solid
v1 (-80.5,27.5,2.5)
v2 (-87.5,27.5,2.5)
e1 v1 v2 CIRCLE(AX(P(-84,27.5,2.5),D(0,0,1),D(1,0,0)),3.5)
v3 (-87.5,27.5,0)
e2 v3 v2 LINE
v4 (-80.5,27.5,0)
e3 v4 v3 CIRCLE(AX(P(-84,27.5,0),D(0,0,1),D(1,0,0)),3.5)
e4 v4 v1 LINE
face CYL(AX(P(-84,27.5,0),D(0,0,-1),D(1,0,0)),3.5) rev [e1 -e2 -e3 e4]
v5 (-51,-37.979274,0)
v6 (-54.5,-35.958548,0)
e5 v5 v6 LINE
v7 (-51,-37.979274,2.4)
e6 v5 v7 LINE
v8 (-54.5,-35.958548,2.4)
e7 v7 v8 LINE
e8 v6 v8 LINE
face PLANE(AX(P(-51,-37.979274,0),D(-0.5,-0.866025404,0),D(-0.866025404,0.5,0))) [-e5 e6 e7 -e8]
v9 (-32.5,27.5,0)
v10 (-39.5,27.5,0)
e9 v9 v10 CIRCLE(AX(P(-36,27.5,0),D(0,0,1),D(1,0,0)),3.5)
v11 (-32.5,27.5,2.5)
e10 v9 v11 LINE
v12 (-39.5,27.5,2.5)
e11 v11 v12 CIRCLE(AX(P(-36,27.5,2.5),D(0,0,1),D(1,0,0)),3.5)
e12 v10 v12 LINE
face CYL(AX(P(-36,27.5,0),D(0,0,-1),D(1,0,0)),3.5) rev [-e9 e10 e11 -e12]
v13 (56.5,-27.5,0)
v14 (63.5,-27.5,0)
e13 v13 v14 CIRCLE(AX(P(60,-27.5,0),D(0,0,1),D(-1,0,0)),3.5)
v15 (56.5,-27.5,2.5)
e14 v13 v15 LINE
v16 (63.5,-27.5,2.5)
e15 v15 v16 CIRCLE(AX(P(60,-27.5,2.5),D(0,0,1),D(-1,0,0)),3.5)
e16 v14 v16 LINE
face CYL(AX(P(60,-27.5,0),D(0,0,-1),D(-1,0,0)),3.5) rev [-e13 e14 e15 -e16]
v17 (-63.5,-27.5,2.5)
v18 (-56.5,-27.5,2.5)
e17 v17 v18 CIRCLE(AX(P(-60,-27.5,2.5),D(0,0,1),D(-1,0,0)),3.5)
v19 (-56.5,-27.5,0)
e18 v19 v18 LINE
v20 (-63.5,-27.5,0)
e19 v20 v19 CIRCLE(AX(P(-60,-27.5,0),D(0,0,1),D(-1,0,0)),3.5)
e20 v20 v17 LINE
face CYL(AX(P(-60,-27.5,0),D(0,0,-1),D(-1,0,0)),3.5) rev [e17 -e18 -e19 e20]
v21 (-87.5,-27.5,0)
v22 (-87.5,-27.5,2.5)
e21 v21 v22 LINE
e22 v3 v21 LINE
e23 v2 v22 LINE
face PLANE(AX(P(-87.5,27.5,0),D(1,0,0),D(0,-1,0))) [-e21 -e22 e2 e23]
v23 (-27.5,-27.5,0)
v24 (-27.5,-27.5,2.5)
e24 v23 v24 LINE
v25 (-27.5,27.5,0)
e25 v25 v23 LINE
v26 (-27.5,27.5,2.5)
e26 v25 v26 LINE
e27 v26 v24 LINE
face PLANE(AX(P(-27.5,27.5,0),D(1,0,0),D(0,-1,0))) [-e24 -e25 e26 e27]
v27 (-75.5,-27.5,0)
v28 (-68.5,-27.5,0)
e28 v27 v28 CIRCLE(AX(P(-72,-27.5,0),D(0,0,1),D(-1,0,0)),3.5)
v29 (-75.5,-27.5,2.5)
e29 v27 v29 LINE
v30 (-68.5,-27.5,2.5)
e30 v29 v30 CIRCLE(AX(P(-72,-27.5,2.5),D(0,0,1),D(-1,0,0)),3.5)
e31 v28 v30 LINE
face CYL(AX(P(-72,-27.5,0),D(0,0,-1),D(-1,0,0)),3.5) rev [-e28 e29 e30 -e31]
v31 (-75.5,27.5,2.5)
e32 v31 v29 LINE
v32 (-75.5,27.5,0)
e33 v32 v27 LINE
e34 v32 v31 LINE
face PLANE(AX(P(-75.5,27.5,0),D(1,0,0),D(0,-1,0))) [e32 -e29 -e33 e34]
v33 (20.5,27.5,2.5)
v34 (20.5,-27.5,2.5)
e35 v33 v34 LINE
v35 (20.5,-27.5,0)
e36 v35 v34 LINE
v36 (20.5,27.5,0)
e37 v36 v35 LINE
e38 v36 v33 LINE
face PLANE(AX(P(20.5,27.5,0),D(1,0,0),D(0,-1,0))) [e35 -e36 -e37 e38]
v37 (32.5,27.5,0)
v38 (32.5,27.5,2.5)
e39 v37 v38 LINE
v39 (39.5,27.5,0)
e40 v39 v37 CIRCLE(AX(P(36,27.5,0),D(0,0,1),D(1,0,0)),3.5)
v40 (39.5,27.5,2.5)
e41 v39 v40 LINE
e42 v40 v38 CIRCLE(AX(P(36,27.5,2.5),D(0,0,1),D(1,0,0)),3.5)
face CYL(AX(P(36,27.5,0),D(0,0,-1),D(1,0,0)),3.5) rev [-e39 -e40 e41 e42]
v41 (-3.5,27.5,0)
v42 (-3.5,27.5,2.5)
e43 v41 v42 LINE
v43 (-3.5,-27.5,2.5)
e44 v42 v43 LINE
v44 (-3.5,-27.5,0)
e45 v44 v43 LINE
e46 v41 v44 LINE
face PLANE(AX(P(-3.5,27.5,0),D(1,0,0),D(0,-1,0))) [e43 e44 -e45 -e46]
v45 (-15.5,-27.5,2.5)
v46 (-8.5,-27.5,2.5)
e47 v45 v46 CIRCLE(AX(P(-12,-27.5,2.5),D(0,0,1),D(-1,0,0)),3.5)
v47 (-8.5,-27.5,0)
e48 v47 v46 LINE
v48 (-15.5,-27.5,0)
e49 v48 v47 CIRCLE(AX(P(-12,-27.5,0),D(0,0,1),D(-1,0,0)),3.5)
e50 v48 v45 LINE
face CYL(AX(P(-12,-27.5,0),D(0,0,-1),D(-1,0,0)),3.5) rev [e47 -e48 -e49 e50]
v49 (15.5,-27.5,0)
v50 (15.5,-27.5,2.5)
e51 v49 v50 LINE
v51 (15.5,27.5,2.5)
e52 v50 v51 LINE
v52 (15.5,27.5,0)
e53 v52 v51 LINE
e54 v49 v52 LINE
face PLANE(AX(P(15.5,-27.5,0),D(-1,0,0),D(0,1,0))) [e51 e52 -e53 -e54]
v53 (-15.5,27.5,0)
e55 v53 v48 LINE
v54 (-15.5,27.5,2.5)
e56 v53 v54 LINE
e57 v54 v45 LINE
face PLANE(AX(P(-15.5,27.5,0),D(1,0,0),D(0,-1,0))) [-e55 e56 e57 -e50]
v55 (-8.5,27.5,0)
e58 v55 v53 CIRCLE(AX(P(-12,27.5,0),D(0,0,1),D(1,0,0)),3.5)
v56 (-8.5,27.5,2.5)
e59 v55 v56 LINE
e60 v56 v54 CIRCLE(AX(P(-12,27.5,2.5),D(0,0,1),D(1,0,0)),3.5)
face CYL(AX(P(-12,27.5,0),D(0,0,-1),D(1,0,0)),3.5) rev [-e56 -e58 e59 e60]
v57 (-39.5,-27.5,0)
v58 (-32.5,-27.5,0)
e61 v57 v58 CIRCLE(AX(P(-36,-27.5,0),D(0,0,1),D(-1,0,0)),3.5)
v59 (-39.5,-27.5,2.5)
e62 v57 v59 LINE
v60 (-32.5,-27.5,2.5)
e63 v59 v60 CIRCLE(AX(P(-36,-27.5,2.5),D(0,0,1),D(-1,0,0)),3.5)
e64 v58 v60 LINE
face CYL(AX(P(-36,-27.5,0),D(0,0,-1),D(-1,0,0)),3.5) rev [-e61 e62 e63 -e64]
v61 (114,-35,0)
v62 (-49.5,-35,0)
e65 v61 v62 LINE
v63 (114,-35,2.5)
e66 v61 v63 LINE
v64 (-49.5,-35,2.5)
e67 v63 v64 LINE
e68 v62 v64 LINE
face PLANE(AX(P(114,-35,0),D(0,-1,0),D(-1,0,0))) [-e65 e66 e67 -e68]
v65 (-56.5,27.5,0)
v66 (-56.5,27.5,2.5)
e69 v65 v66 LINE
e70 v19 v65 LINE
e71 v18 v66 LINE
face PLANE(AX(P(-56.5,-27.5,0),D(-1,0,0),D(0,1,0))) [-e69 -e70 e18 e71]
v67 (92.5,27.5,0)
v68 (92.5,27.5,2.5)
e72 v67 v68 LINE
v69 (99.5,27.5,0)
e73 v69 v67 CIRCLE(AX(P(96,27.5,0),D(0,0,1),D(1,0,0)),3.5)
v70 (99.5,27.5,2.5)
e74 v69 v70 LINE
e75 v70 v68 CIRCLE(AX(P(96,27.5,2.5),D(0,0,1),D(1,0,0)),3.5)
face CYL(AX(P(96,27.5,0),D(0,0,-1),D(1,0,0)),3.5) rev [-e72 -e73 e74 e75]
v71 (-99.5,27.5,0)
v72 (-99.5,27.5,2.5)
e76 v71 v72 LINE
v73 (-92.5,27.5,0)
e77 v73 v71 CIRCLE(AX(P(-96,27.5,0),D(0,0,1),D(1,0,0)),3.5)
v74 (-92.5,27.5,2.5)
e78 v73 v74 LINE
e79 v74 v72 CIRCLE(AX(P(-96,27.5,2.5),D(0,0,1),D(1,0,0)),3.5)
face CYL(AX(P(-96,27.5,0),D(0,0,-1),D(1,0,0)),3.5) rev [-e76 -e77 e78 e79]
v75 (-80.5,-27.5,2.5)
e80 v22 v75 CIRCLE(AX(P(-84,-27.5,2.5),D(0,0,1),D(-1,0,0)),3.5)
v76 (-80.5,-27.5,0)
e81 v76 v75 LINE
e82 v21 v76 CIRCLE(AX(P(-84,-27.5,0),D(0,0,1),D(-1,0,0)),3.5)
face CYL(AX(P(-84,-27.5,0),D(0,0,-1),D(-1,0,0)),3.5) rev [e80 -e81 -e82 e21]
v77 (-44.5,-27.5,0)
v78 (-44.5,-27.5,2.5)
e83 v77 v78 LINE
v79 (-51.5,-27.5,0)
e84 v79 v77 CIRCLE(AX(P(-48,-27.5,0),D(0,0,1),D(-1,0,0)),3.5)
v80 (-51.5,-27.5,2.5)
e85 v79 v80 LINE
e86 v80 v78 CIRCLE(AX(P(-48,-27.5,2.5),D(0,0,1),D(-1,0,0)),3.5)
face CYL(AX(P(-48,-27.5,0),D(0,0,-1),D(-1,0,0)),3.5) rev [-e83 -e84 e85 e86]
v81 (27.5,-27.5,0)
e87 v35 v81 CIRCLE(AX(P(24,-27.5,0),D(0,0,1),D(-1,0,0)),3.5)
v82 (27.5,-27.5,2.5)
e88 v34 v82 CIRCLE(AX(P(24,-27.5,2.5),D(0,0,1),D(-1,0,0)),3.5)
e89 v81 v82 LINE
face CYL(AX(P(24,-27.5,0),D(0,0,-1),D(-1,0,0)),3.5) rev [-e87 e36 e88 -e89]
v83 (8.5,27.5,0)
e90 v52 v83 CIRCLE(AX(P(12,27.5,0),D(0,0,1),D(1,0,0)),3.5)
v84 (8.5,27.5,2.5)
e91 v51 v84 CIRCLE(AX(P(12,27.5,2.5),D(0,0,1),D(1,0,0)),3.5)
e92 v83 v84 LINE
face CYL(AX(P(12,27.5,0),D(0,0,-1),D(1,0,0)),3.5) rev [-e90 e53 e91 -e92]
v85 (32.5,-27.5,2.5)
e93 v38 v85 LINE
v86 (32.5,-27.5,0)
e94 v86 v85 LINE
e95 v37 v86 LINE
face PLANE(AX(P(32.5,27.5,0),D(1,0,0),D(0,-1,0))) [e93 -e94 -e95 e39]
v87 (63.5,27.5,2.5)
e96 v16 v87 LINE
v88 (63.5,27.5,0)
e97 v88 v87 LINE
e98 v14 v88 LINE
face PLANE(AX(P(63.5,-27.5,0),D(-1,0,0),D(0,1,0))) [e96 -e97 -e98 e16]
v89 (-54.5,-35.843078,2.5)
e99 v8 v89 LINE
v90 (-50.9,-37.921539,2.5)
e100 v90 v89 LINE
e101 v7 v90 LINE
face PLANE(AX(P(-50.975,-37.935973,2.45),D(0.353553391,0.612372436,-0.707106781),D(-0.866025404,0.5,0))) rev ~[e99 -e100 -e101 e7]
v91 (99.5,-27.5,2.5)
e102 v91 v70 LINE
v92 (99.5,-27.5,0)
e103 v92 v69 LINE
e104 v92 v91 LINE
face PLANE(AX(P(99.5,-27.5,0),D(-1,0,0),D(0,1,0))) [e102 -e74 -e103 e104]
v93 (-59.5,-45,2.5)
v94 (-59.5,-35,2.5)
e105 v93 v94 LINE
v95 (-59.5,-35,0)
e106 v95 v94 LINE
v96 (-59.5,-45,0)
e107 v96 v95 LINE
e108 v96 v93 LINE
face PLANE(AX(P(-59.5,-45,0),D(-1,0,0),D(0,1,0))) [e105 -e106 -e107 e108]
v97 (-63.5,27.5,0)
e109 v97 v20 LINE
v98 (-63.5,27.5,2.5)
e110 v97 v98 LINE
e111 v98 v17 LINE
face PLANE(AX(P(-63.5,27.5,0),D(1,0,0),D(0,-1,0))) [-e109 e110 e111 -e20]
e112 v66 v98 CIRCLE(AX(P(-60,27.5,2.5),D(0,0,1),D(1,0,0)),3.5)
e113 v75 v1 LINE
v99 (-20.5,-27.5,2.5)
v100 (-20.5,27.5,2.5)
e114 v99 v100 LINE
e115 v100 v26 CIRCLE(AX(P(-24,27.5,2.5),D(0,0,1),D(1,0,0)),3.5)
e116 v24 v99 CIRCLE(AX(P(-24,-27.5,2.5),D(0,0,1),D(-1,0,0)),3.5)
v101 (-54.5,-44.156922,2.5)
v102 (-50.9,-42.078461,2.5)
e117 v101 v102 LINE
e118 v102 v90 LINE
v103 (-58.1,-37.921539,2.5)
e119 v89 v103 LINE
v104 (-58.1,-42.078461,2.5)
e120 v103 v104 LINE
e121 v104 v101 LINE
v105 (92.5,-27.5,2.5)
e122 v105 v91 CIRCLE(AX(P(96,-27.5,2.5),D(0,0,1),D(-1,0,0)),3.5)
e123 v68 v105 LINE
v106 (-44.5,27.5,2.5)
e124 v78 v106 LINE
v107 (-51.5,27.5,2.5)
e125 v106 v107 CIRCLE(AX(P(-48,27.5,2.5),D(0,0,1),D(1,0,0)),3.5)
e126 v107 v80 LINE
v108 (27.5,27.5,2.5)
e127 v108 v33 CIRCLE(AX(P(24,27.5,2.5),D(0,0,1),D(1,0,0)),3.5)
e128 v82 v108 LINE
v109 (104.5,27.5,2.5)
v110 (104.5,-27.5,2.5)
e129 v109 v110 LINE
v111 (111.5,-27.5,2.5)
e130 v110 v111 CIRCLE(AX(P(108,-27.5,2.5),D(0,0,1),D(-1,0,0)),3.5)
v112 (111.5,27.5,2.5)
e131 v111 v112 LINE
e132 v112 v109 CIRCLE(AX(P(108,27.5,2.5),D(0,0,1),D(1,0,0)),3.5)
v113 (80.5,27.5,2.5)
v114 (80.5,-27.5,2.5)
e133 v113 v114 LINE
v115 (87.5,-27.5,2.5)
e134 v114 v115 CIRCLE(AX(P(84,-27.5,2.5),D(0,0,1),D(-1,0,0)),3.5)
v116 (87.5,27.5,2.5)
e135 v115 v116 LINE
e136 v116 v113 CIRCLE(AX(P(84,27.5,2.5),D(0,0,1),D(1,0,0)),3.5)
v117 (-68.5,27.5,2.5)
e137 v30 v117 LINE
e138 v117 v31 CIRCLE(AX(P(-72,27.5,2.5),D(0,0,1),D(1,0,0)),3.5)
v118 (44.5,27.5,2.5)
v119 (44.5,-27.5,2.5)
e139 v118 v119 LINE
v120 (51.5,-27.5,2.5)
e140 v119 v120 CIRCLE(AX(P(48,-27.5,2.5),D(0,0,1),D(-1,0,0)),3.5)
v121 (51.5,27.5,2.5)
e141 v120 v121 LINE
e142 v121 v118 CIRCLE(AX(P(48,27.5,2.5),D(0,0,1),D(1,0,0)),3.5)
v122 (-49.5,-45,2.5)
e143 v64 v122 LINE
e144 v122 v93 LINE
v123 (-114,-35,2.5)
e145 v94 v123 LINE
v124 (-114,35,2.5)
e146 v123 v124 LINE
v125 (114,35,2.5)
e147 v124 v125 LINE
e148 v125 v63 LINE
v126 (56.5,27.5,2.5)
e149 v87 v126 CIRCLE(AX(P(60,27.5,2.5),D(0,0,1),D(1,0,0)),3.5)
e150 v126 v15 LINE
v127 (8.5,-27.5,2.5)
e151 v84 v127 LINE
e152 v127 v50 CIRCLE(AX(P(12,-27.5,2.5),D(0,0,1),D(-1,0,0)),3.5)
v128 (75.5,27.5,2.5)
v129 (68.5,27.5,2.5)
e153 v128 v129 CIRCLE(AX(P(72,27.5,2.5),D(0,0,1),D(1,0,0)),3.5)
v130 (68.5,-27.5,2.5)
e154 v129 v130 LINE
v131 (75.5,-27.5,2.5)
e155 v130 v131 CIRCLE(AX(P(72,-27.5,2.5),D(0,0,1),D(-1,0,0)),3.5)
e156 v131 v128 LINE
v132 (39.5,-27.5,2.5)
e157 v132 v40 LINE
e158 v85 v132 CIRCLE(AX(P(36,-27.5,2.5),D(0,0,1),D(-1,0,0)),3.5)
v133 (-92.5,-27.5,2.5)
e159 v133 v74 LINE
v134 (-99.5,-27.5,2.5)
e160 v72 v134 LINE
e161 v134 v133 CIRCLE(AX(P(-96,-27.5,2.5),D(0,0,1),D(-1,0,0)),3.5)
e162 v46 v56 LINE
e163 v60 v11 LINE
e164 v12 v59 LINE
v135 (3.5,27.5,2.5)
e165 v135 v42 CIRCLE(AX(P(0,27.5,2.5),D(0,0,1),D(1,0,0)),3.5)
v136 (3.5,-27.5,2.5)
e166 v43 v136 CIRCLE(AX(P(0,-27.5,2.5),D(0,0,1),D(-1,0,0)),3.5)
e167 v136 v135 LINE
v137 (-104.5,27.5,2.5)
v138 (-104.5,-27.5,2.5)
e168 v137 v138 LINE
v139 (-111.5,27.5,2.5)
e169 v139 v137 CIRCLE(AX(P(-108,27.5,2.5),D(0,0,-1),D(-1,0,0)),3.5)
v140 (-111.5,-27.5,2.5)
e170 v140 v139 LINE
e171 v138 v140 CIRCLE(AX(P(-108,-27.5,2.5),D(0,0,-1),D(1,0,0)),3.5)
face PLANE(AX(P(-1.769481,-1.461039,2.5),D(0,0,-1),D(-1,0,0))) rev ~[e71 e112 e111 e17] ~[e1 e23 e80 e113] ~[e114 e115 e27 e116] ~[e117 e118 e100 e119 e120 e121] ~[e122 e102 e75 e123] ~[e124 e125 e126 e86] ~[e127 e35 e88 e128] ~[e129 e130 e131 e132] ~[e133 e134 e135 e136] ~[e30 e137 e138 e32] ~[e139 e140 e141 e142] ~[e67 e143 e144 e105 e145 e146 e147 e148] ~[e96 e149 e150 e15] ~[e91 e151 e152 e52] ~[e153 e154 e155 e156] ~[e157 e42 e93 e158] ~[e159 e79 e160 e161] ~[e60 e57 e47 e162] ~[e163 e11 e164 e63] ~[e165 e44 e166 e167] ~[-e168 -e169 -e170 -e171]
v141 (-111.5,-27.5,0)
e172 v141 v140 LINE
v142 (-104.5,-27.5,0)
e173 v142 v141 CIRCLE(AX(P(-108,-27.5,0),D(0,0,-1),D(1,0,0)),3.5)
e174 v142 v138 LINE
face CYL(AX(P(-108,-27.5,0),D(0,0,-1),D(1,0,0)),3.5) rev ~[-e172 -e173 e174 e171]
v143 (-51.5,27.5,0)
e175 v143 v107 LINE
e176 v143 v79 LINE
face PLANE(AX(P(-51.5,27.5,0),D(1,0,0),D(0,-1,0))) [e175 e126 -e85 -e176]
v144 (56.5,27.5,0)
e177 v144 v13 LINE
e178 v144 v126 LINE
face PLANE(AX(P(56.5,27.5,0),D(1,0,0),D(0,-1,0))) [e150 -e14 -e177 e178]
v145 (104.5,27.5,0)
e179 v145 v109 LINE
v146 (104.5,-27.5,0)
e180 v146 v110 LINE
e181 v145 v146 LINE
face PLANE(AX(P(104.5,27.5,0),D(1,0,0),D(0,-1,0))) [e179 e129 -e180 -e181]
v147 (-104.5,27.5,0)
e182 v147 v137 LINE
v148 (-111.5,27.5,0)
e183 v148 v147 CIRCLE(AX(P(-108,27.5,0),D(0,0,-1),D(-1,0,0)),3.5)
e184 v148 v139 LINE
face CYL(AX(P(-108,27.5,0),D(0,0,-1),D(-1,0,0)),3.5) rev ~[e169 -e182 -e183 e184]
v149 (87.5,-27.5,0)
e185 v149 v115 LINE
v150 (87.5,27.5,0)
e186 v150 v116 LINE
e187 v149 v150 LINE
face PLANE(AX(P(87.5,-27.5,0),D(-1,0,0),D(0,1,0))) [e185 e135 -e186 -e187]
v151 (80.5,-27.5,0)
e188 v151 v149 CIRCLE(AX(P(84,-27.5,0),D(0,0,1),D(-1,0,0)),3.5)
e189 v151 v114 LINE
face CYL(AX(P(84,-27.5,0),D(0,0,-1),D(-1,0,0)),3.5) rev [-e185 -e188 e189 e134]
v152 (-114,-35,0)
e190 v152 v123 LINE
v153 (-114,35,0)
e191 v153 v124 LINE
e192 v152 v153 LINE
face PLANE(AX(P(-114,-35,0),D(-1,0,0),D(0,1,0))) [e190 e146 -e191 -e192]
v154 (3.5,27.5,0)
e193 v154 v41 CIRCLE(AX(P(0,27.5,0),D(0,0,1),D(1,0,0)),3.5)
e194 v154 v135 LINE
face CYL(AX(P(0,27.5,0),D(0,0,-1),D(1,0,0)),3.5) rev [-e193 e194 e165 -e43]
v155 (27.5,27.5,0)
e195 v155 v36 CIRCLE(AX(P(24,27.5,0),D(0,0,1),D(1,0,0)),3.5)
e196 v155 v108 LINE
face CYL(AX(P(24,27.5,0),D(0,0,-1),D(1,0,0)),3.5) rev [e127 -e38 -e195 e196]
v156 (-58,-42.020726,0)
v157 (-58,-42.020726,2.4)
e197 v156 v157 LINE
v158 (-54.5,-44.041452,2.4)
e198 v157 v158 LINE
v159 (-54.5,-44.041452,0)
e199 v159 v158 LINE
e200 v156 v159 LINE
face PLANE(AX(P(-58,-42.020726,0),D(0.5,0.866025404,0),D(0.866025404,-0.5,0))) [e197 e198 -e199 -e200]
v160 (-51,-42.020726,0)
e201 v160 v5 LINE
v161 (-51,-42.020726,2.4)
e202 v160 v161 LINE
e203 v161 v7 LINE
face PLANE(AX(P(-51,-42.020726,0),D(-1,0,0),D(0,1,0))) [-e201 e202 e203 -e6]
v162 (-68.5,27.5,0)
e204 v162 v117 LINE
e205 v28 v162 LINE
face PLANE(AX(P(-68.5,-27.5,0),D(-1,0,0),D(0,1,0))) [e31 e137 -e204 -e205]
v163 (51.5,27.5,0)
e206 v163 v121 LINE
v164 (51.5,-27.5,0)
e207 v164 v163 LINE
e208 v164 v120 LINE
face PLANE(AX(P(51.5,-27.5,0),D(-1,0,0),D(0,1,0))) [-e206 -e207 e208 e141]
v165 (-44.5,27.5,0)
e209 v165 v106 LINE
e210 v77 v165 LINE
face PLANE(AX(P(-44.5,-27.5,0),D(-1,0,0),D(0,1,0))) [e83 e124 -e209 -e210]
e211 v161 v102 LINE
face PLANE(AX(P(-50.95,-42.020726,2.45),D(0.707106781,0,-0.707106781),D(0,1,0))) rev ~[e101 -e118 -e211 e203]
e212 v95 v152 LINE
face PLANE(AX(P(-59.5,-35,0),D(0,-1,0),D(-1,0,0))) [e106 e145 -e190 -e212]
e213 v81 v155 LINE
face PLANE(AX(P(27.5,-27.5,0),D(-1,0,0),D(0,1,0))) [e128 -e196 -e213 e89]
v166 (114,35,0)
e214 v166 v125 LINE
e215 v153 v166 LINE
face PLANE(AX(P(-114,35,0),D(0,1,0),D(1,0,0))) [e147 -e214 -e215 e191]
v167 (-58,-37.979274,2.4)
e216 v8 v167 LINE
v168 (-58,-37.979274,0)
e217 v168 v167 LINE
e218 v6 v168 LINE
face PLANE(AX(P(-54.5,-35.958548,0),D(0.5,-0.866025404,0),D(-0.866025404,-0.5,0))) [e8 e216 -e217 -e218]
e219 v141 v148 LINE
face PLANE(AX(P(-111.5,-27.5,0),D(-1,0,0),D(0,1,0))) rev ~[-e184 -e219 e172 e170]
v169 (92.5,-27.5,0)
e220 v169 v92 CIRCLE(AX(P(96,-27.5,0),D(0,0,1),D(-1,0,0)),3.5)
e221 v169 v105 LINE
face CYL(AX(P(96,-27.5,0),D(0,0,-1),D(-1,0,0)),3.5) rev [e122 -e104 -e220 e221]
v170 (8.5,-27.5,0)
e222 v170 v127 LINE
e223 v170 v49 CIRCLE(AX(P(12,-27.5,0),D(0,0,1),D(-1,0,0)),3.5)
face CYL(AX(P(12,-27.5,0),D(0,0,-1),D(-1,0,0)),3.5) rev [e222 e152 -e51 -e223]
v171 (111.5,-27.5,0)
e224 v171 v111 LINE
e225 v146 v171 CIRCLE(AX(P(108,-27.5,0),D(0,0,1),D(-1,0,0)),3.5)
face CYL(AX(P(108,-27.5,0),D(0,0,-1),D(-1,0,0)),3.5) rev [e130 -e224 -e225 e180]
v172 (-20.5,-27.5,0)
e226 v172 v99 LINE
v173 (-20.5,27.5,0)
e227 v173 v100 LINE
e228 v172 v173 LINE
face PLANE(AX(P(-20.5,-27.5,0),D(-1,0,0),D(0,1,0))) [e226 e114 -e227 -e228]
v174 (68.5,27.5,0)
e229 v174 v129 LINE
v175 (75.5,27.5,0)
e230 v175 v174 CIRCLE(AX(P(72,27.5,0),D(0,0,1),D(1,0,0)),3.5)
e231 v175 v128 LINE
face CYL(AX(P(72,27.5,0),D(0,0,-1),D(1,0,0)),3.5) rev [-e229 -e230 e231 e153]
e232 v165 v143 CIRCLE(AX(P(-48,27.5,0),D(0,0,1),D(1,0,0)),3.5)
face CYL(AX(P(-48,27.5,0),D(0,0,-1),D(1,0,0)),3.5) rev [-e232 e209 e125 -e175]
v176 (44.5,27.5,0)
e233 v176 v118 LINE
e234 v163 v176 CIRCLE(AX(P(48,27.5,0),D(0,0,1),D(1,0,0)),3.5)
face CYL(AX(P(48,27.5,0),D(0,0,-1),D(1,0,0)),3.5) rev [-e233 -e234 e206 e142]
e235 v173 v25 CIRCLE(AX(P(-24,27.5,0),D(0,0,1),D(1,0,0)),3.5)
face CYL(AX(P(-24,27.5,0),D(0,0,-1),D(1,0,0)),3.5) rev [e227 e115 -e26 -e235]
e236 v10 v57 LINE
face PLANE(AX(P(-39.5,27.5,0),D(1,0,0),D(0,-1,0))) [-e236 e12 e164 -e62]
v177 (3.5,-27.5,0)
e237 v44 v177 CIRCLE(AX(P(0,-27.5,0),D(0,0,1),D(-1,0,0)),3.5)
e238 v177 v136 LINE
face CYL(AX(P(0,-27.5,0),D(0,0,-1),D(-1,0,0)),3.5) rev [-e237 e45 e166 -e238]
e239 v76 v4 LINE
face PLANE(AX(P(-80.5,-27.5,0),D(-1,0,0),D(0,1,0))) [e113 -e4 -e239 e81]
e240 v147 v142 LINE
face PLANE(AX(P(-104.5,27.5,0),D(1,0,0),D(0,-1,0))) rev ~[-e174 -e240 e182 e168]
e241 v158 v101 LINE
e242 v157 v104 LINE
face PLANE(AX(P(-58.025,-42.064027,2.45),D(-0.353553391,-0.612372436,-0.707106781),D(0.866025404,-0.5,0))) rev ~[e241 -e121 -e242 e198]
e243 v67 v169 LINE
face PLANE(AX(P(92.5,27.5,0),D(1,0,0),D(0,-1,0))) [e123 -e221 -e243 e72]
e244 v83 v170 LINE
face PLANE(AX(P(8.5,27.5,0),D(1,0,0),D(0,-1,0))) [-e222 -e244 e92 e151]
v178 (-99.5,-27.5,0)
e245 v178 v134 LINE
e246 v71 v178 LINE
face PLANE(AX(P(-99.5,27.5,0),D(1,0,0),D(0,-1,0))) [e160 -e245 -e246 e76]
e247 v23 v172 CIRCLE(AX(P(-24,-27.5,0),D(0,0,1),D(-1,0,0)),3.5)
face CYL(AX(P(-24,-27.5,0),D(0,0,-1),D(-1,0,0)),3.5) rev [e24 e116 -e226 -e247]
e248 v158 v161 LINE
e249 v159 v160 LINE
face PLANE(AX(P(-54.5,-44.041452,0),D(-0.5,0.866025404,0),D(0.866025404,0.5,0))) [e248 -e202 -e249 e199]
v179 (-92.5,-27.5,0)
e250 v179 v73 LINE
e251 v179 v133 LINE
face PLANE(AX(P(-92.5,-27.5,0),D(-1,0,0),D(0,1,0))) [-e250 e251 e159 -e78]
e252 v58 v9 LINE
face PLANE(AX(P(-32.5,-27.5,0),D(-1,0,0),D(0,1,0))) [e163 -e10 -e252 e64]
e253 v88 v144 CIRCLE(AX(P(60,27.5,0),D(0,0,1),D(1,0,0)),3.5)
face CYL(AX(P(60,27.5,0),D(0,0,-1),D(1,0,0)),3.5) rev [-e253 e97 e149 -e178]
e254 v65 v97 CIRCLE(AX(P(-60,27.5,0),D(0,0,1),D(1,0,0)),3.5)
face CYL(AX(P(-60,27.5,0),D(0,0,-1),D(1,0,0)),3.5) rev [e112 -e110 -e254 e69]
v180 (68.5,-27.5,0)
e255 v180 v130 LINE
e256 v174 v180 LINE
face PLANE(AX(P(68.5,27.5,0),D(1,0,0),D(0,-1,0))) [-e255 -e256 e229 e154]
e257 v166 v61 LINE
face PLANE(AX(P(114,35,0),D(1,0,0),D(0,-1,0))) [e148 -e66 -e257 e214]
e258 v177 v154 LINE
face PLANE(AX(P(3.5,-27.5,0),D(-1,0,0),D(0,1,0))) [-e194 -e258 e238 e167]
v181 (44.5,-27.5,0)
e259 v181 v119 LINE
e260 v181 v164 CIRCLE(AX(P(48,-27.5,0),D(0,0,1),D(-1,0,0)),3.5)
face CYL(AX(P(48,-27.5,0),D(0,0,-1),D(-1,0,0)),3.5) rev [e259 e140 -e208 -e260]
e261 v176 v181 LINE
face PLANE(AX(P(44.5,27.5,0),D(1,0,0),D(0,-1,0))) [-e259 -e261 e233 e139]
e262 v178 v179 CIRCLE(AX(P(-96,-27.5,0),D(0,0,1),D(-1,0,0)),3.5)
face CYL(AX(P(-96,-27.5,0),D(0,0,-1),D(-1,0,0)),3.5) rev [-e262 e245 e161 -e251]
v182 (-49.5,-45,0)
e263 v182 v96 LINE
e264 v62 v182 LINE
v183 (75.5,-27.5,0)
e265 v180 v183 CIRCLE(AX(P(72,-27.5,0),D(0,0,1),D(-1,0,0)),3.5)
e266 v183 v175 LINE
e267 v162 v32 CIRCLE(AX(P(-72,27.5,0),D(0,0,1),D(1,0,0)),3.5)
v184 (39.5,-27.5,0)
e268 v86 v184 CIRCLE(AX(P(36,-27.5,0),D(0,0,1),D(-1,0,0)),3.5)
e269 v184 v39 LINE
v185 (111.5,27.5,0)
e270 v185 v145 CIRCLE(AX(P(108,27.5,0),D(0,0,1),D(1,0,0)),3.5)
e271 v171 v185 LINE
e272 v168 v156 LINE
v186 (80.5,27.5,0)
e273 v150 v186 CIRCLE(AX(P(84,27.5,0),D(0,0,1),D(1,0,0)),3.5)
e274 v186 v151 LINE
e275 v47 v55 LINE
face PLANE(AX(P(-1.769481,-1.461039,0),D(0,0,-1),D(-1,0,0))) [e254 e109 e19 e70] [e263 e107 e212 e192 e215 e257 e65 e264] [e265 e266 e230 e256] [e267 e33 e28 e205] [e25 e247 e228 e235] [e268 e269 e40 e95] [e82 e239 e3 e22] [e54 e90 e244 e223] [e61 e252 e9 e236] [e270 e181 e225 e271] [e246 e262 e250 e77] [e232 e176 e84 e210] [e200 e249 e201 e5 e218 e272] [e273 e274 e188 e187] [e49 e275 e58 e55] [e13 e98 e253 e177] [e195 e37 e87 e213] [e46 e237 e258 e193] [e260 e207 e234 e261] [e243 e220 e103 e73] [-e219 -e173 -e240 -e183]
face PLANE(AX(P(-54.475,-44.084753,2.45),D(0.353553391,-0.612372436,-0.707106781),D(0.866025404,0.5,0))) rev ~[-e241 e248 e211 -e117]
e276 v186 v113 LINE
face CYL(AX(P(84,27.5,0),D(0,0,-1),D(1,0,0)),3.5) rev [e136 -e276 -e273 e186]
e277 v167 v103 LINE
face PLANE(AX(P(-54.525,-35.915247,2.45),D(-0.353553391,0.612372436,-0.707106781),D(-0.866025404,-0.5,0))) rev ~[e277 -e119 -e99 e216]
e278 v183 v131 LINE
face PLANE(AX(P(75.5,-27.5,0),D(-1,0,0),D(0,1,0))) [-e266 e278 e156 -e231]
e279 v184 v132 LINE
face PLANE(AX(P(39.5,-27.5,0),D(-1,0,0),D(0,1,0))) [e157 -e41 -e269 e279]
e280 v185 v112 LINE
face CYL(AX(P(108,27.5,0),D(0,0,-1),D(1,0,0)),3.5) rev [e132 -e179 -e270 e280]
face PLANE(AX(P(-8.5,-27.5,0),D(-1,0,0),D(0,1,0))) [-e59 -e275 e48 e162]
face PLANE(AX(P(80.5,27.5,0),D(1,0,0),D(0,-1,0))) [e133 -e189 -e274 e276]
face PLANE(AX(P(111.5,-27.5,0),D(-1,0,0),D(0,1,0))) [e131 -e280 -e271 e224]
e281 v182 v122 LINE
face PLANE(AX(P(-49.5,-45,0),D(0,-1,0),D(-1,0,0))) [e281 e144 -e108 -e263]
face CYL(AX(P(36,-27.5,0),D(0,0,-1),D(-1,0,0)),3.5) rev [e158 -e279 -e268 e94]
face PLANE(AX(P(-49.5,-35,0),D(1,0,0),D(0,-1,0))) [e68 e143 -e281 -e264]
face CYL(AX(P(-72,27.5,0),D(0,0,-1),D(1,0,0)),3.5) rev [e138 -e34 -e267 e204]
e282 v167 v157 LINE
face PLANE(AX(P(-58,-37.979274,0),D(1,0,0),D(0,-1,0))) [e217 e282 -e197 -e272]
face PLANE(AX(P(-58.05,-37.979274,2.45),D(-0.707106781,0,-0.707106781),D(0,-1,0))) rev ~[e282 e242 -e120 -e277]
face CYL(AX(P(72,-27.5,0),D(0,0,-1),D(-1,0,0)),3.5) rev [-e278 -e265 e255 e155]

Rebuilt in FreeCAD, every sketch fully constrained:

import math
import FreeCAD as App
import Part
import Sketcher
Q = App.Units.Quantity


def edges_at(feature, points):
    """Names of the edges that pass closest to the given points."""
    edges = feature.Shape.Edges
    near = lambda p: min(range(len(edges)), key=lambda i: edges[i].distToShape(Part.Vertex(*p))[0])
    return sorted({f"Edge{near(p) + 1}" for p in points})

doc = App.newDocument("Part")
body = doc.addObject("PartDesign::Body", "Body")

sketch1 = body.newObject("Sketcher::SketchObject", "Sketch")
sketch1.AttachmentSupport = (doc.getObject("XY_Plane"), [""])
sketch1.MapMode = "FlatFace"
sketch1.addGeometry(Part.LineSegment(App.Vector(114, 35, 0), App.Vector(-114, 35, 0)), False)
sketch1.addGeometry(Part.LineSegment(App.Vector(-114, 35, 0), App.Vector(-114, -35, 0)), False)
sketch1.addGeometry(Part.LineSegment(App.Vector(-114, -35, 0), App.Vector(-59.5, -35, 0)), False)
sketch1.addGeometry(Part.LineSegment(App.Vector(-59.5, -35, 0), App.Vector(-59.5, -45, 0)), False)
sketch1.addGeometry(Part.LineSegment(App.Vector(-59.5, -45, 0), App.Vector(-49.5, -45, 0)), False)
sketch1.addGeometry(Part.LineSegment(App.Vector(-49.5, -45, 0), App.Vector(-49.5, -35, 0)), False)
sketch1.addGeometry(Part.LineSegment(App.Vector(-49.5, -35, 0), App.Vector(114, -35, 0)), False)
sketch1.addGeometry(Part.LineSegment(App.Vector(114, -35, 0), App.Vector(114, 35, 0)), False)
sketch1.addGeometry(Part.LineSegment(App.Vector(-51, -42, 0), App.Vector(-54.5, -44, 0)), False)
sketch1.addGeometry(Part.LineSegment(App.Vector(-54.5, -44, 0), App.Vector(-58, -42, 0)), False)
sketch1.addGeometry(Part.LineSegment(App.Vector(-58, -42, 0), App.Vector(-58, -38, 0)), False)
sketch1.addGeometry(Part.LineSegment(App.Vector(-58, -38, 0), App.Vector(-54.5, -36, 0)), False)
sketch1.addGeometry(Part.LineSegment(App.Vector(-54.5, -36, 0), App.Vector(-51, -38, 0)), False)
sketch1.addGeometry(Part.LineSegment(App.Vector(-51, -38, 0), App.Vector(-51, -42, 0)), False)
sketch1.addGeometry(Part.ArcOfCircle(Part.Circle(App.Vector(108, -27.5, 0), App.Vector(0, 0, 1), 3.5), math.radians(180), math.radians(360)), False)
sketch1.addGeometry(Part.LineSegment(App.Vector(104.5, -27.5, 0), App.Vector(104.5, 27.5, 0)), False)
sketch1.addGeometry(Part.ArcOfCircle(Part.Circle(App.Vector(108, 27.5, 0), App.Vector(0, 0, 1), 3.5), math.radians(0), math.radians(180)), False)
sketch1.addGeometry(Part.LineSegment(App.Vector(111.5, 27.5, 0), App.Vector(111.5, -27.5, 0)), False)
sketch1.addGeometry(Part.ArcOfCircle(Part.Circle(App.Vector(96, -27.5, 0), App.Vector(0, 0, 1), 3.5), math.radians(180), math.radians(360)), False)
sketch1.addGeometry(Part.LineSegment(App.Vector(92.5, -27.5, 0), App.Vector(92.5, 27.5, 0)), False)
sketch1.addGeometry(Part.ArcOfCircle(Part.Circle(App.Vector(96, 27.5, 0), App.Vector(0, 0, 1), 3.5), math.radians(0), math.radians(180)), False)
sketch1.addGeometry(Part.LineSegment(App.Vector(99.5, 27.5, 0), App.Vector(99.5, -27.5, 0)), False)
sketch1.addGeometry(Part.ArcOfCircle(Part.Circle(App.Vector(84, -27.5, 0), App.Vector(0, 0, 1), 3.5), math.radians(180), math.radians(360)), False)
sketch1.addGeometry(Part.LineSegment(App.Vector(80.5, -27.5, 0), App.Vector(80.5, 27.5, 0)), False)
sketch1.addGeometry(Part.ArcOfCircle(Part.Circle(App.Vector(84, 27.5, 0), App.Vector(0, 0, 1), 3.5), math.radians(0), math.radians(180)), False)
sketch1.addGeometry(Part.LineSegment(App.Vector(87.5, 27.5, 0), App.Vector(87.5, -27.5, 0)), False)
sketch1.addGeometry(Part.ArcOfCircle(Part.Circle(App.Vector(72, -27.5, 0), App.Vector(0, 0, 1), 3.5), math.radians(180), math.radians(360)), False)
sketch1.addGeometry(Part.LineSegment(App.Vector(68.5, -27.5, 0), App.Vector(68.5, 27.5, 0)), False)
sketch1.addGeometry(Part.ArcOfCircle(Part.Circle(App.Vector(72, 27.5, 0), App.Vector(0, 0, 1), 3.5), math.radians(0), math.radians(180)), False)
sketch1.addGeometry(Part.LineSegment(App.Vector(75.5, 27.5, 0), App.Vector(75.5, -27.5, 0)), False)
sketch1.addGeometry(Part.ArcOfCircle(Part.Circle(App.Vector(60, -27.5, 0), App.Vector(0, 0, 1), 3.5), math.radians(180), math.radians(360)), False)
sketch1.addGeometry(Part.LineSegment(App.Vector(56.5, -27.5, 0), App.Vector(56.5, 27.5, 0)), False)
sketch1.addGeometry(Part.ArcOfCircle(Part.Circle(App.Vector(60, 27.5, 0), App.Vector(0, 0, 1), 3.5), math.radians(0), math.radians(180)), False)
sketch1.addGeometry(Part.LineSegment(App.Vector(63.5, 27.5, 0), App.Vector(63.5, -27.5, 0)), False)
sketch1.addGeometry(Part.ArcOfCircle(Part.Circle(App.Vector(48, -27.5, 0), App.Vector(0, 0, 1), 3.5), math.radians(180), math.radians(360)), False)
sketch1.addGeometry(Part.LineSegment(App.Vector(44.5, -27.5, 0), App.Vector(44.5, 27.5, 0)), False)
sketch1.addGeometry(Part.ArcOfCircle(Part.Circle(App.Vector(48, 27.5, 0), App.Vector(0, 0, 1), 3.5), math.radians(0), math.radians(180)), False)
sketch1.addGeometry(Part.LineSegment(App.Vector(51.5, 27.5, 0), App.Vector(51.5, -27.5, 0)), False)
sketch1.addGeometry(Part.ArcOfCircle(Part.Circle(App.Vector(36, -27.5, 0), App.Vector(0, 0, 1), 3.5), math.radians(180), math.radians(360)), False)
sketch1.addGeometry(Part.LineSegment(App.Vector(32.5, -27.5, 0), App.Vector(32.5, 27.5, 0)), False)
sketch1.addGeometry(Part.ArcOfCircle(Part.Circle(App.Vector(36, 27.5, 0), App.Vector(0, 0, 1), 3.5), math.radians(0), math.radians(180)), False)
sketch1.addGeometry(Part.LineSegment(App.Vector(39.5, 27.5, 0), App.Vector(39.5, -27.5, 0)), False)
sketch1.addGeometry(Part.ArcOfCircle(Part.Circle(App.Vector(24, -27.5, 0), App.Vector(0, 0, 1), 3.5), math.radians(180), math.radians(360)), False)
sketch1.addGeometry(Part.LineSegment(App.Vector(20.5, -27.5, 0), App.Vector(20.5, 27.5, 0)), False)
sketch1.addGeometry(Part.ArcOfCircle(Part.Circle(App.Vector(24, 27.5, 0), App.Vector(0, 0, 1), 3.5), math.radians(0), math.radians(180)), False)
sketch1.addGeometry(Part.LineSegment(App.Vector(27.5, 27.5, 0), App.Vector(27.5, -27.5, 0)), False)
sketch1.addGeometry(Part.ArcOfCircle(Part.Circle(App.Vector(12, -27.5, 0), App.Vector(0, 0, 1), 3.5), math.radians(180), math.radians(360)), False)
sketch1.addGeometry(Part.LineSegment(App.Vector(8.5, -27.5, 0), App.Vector(8.5, 27.5, 0)), False)
sketch1.addGeometry(Part.ArcOfCircle(Part.Circle(App.Vector(12, 27.5, 0), App.Vector(0, 0, 1), 3.5), math.radians(0), math.radians(180)), False)
sketch1.addGeometry(Part.LineSegment(App.Vector(15.5, 27.5, 0), App.Vector(15.5, -27.5, 0)), False)
sketch1.addGeometry(Part.ArcOfCircle(Part.Circle(App.Vector(0, -27.5, 0), App.Vector(0, 0, 1), 3.5), math.radians(180), math.radians(360)), False)
sketch1.addGeometry(Part.LineSegment(App.Vector(-3.5, -27.5, 0), App.Vector(-3.5, 27.5, 0)), False)
sketch1.addGeometry(Part.ArcOfCircle(Part.Circle(App.Vector(0, 27.5, 0), App.Vector(0, 0, 1), 3.5), math.radians(0), math.radians(180)), False)
sketch1.addGeometry(Part.LineSegment(App.Vector(3.5, 27.5, 0), App.Vector(3.5, -27.5, 0)), False)
sketch1.addGeometry(Part.ArcOfCircle(Part.Circle(App.Vector(-12, -27.5, 0), App.Vector(0, 0, 1), 3.5), math.radians(180), math.radians(360)), False)
sketch1.addGeometry(Part.LineSegment(App.Vector(-15.5, -27.5, 0), App.Vector(-15.5, 27.5, 0)), False)
sketch1.addGeometry(Part.ArcOfCircle(Part.Circle(App.Vector(-12, 27.5, 0), App.Vector(0, 0, 1), 3.5), math.radians(0), math.radians(180)), False)
sketch1.addGeometry(Part.LineSegment(App.Vector(-8.5, 27.5, 0), App.Vector(-8.5, -27.5, 0)), False)
sketch1.addGeometry(Part.ArcOfCircle(Part.Circle(App.Vector(-24, -27.5, 0), App.Vector(0, 0, 1), 3.5), math.radians(180), math.radians(360)), False)
sketch1.addGeometry(Part.LineSegment(App.Vector(-27.5, -27.5, 0), App.Vector(-27.5, 27.5, 0)), False)
sketch1.addGeometry(Part.ArcOfCircle(Part.Circle(App.Vector(-24, 27.5, 0), App.Vector(0, 0, 1), 3.5), math.radians(0), math.radians(180)), False)
sketch1.addGeometry(Part.LineSegment(App.Vector(-20.5, 27.5, 0), App.Vector(-20.5, -27.5, 0)), False)
sketch1.addGeometry(Part.ArcOfCircle(Part.Circle(App.Vector(-36, -27.5, 0), App.Vector(0, 0, 1), 3.5), math.radians(180), math.radians(360)), False)
sketch1.addGeometry(Part.LineSegment(App.Vector(-39.5, -27.5, 0), App.Vector(-39.5, 27.5, 0)), False)
sketch1.addGeometry(Part.ArcOfCircle(Part.Circle(App.Vector(-36, 27.5, 0), App.Vector(0, 0, 1), 3.5), math.radians(0), math.radians(180)), False)
sketch1.addGeometry(Part.LineSegment(App.Vector(-32.5, 27.5, 0), App.Vector(-32.5, -27.5, 0)), False)
sketch1.addGeometry(Part.ArcOfCircle(Part.Circle(App.Vector(-48, -27.5, 0), App.Vector(0, 0, 1), 3.5), math.radians(180), math.radians(360)), False)
sketch1.addGeometry(Part.LineSegment(App.Vector(-51.5, -27.5, 0), App.Vector(-51.5, 27.5, 0)), False)
sketch1.addGeometry(Part.ArcOfCircle(Part.Circle(App.Vector(-48, 27.5, 0), App.Vector(0, 0, 1), 3.5), math.radians(0), math.radians(180)), False)
sketch1.addGeometry(Part.LineSegment(App.Vector(-44.5, 27.5, 0), App.Vector(-44.5, -27.5, 0)), False)
sketch1.addGeometry(Part.ArcOfCircle(Part.Circle(App.Vector(-60, -27.5, 0), App.Vector(0, 0, 1), 3.5), math.radians(180), math.radians(360)), False)
sketch1.addGeometry(Part.LineSegment(App.Vector(-63.5, -27.5, 0), App.Vector(-63.5, 27.5, 0)), False)
sketch1.addGeometry(Part.ArcOfCircle(Part.Circle(App.Vector(-60, 27.5, 0), App.Vector(0, 0, 1), 3.5), math.radians(0), math.radians(180)), False)
sketch1.addGeometry(Part.LineSegment(App.Vector(-56.5, 27.5, 0), App.Vector(-56.5, -27.5, 0)), False)
sketch1.addGeometry(Part.ArcOfCircle(Part.Circle(App.Vector(-72, -27.5, 0), App.Vector(0, 0, 1), 3.5), math.radians(180), math.radians(360)), False)
sketch1.addGeometry(Part.LineSegment(App.Vector(-75.5, -27.5, 0), App.Vector(-75.5, 27.5, 0)), False)
sketch1.addGeometry(Part.ArcOfCircle(Part.Circle(App.Vector(-72, 27.5, 0), App.Vector(0, 0, 1), 3.5), math.radians(0), math.radians(180)), False)
sketch1.addGeometry(Part.LineSegment(App.Vector(-68.5, 27.5, 0), App.Vector(-68.5, -27.5, 0)), False)
sketch1.addGeometry(Part.ArcOfCircle(Part.Circle(App.Vector(-84, -27.5, 0), App.Vector(0, 0, 1), 3.5), math.radians(180), math.radians(360)), False)
sketch1.addGeometry(Part.LineSegment(App.Vector(-87.5, -27.5, 0), App.Vector(-87.5, 27.5, 0)), False)
sketch1.addGeometry(Part.ArcOfCircle(Part.Circle(App.Vector(-84, 27.5, 0), App.Vector(0, 0, 1), 3.5), math.radians(0), math.radians(180)), False)
sketch1.addGeometry(Part.LineSegment(App.Vector(-80.5, 27.5, 0), App.Vector(-80.5, -27.5, 0)), False)
sketch1.addGeometry(Part.ArcOfCircle(Part.Circle(App.Vector(-96, -27.5, 0), App.Vector(0, 0, 1), 3.5), math.radians(180), math.radians(360)), False)
sketch1.addGeometry(Part.LineSegment(App.Vector(-99.5, -27.5, 0), App.Vector(-99.5, 27.5, 0)), False)
sketch1.addGeometry(Part.ArcOfCircle(Part.Circle(App.Vector(-96, 27.5, 0), App.Vector(0, 0, 1), 3.5), math.radians(0), math.radians(180)), False)
sketch1.addGeometry(Part.LineSegment(App.Vector(-92.5, 27.5, 0), App.Vector(-92.5, -27.5, 0)), False)
sketch1.addGeometry(Part.LineSegment(App.Vector(-111.5, -27.5, 0), App.Vector(-111.5, 27.5, 0)), False)
sketch1.addGeometry(Part.ArcOfCircle(Part.Circle(App.Vector(-108, 27.5, 0), App.Vector(0, 0, 1), 3.5), math.radians(0), math.radians(180)), False)
sketch1.addGeometry(Part.LineSegment(App.Vector(-104.5, 27.5, 0), App.Vector(-104.5, -27.5, 0)), False)
sketch1.addGeometry(Part.ArcOfCircle(Part.Circle(App.Vector(-108, -27.5, 0), App.Vector(0, 0, 1), 3.5), math.radians(180), math.radians(360)), False)
sketch1.addConstraint(Sketcher.Constraint("Coincident", 0, 2, 1, 1))
sketch1.addConstraint(Sketcher.Constraint("Coincident", 1, 2, 2, 1))
sketch1.addConstraint(Sketcher.Constraint("Coincident", 2, 2, 3, 1))
sketch1.addConstraint(Sketcher.Constraint("Coincident", 3, 2, 4, 1))
sketch1.addConstraint(Sketcher.Constraint("Coincident", 4, 2, 5, 1))
sketch1.addConstraint(Sketcher.Constraint("Coincident", 5, 2, 6, 1))
sketch1.addConstraint(Sketcher.Constraint("Coincident", 6, 2, 7, 1))
sketch1.addConstraint(Sketcher.Constraint("Coincident", 7, 2, 0, 1))
sketch1.addConstraint(Sketcher.Constraint("Coincident", 8, 2, 9, 1))
sketch1.addConstraint(Sketcher.Constraint("Coincident", 9, 2, 10, 1))
sketch1.addConstraint(Sketcher.Constraint("Coincident", 10, 2, 11, 1))
sketch1.addConstraint(Sketcher.Constraint("Coincident", 11, 2, 12, 1))
sketch1.addConstraint(Sketcher.Constraint("Coincident", 12, 2, 13, 1))
sketch1.addConstraint(Sketcher.Constraint("Coincident", 13, 2, 8, 1))
sketch1.addConstraint(Sketcher.Constraint("Tangent", 14, 1, 15, 1))
sketch1.addConstraint(Sketcher.Constraint("Tangent", 15, 2, 16, 2))
sketch1.addConstraint(Sketcher.Constraint("Tangent", 16, 1, 17, 1))
sketch1.addConstraint(Sketcher.Constraint("Tangent", 17, 2, 14, 2))
sketch1.addConstraint(Sketcher.Constraint("Tangent", 18, 1, 19, 1))
sketch1.addConstraint(Sketcher.Constraint("Tangent", 19, 2, 20, 2))
sketch1.addConstraint(Sketcher.Constraint("Tangent", 20, 1, 21, 1))
sketch1.addConstraint(Sketcher.Constraint("Tangent", 21, 2, 18, 2))
sketch1.addConstraint(Sketcher.Constraint("Tangent", 22, 1, 23, 1))
sketch1.addConstraint(Sketcher.Constraint("Tangent", 23, 2, 24, 2))
sketch1.addConstraint(Sketcher.Constraint("Tangent", 24, 1, 25, 1))
sketch1.addConstraint(Sketcher.Constraint("Tangent", 25, 2, 22, 2))
sketch1.addConstraint(Sketcher.Constraint("Tangent", 26, 1, 27, 1))
sketch1.addConstraint(Sketcher.Constraint("Tangent", 27, 2, 28, 2))
sketch1.addConstraint(Sketcher.Constraint("Tangent", 28, 1, 29, 1))
sketch1.addConstraint(Sketcher.Constraint("Tangent", 29, 2, 26, 2))
sketch1.addConstraint(Sketcher.Constraint("Tangent", 30, 1, 31, 1))
sketch1.addConstraint(Sketcher.Constraint("Tangent", 31, 2, 32, 2))
sketch1.addConstraint(Sketcher.Constraint("Tangent", 32, 1, 33, 1))
sketch1.addConstraint(Sketcher.Constraint("Tangent", 33, 2, 30, 2))
sketch1.addConstraint(Sketcher.Constraint("Tangent", 34, 1, 35, 1))
sketch1.addConstraint(Sketcher.Constraint("Tangent", 35, 2, 36, 2))
sketch1.addConstraint(Sketcher.Constraint("Tangent", 36, 1, 37, 1))
sketch1.addConstraint(Sketcher.Constraint("Tangent", 37, 2, 34, 2))
sketch1.addConstraint(Sketcher.Constraint("Tangent", 38, 1, 39, 1))
sketch1.addConstraint(Sketcher.Constraint("Tangent", 39, 2, 40, 2))
sketch1.addConstraint(Sketcher.Constraint("Tangent", 40, 1, 41, 1))
sketch1.addConstraint(Sketcher.Constraint("Tangent", 41, 2, 38, 2))
sketch1.addConstraint(Sketcher.Constraint("Tangent", 42, 1, 43, 1))
sketch1.addConstraint(Sketcher.Constraint("Tangent", 43, 2, 44, 2))
sketch1.addConstraint(Sketcher.Constraint("Tangent", 44, 1, 45, 1))
sketch1.addConstraint(Sketcher.Constraint("Tangent", 45, 2, 42, 2))
sketch1.addConstraint(Sketcher.Constraint("Tangent", 46, 1, 47, 1))
sketch1.addConstraint(Sketcher.Constraint("Tangent", 47, 2, 48, 2))
sketch1.addConstraint(Sketcher.Constraint("Tangent", 48, 1, 49, 1))
sketch1.addConstraint(Sketcher.Constraint("Tangent", 49, 2, 46, 2))
sketch1.addConstraint(Sketcher.Constraint("Tangent", 50, 1, 51, 1))
sketch1.addConstraint(Sketcher.Constraint("Tangent", 51, 2, 52, 2))
sketch1.addConstraint(Sketcher.Constraint("Tangent", 52, 1, 53, 1))
sketch1.addConstraint(Sketcher.Constraint("Tangent", 53, 2, 50, 2))
sketch1.addConstraint(Sketcher.Constraint("Tangent", 54, 1, 55, 1))
sketch1.addConstraint(Sketcher.Constraint("Tangent", 55, 2, 56, 2))
sketch1.addConstraint(Sketcher.Constraint("Tangent", 56, 1, 57, 1))
sketch1.addConstraint(Sketcher.Constraint("Tangent", 57, 2, 54, 2))
sketch1.addConstraint(Sketcher.Constraint("Tangent", 58, 1, 59, 1))
sketch1.addConstraint(Sketcher.Constraint("Tangent", 59, 2, 60, 2))
sketch1.addConstraint(Sketcher.Constraint("Tangent", 60, 1, 61, 1))
sketch1.addConstraint(Sketcher.Constraint("Tangent", 61, 2, 58, 2))
sketch1.addConstraint(Sketcher.Constraint("Tangent", 62, 1, 63, 1))
sketch1.addConstraint(Sketcher.Constraint("Tangent", 63, 2, 64, 2))
sketch1.addConstraint(Sketcher.Constraint("Tangent", 64, 1, 65, 1))
sketch1.addConstraint(Sketcher.Constraint("Tangent", 65, 2, 62, 2))
sketch1.addConstraint(Sketcher.Constraint("Tangent", 66, 1, 67, 1))
sketch1.addConstraint(Sketcher.Constraint("Tangent", 67, 2, 68, 2))
sketch1.addConstraint(Sketcher.Constraint("Tangent", 68, 1, 69, 1))
sketch1.addConstraint(Sketcher.Constraint("Tangent", 69, 2, 66, 2))
sketch1.addConstraint(Sketcher.Constraint("Tangent", 70, 1, 71, 1))
sketch1.addConstraint(Sketcher.Constraint("Tangent", 71, 2, 72, 2))
sketch1.addConstraint(Sketcher.Constraint("Tangent", 72, 1, 73, 1))
sketch1.addConstraint(Sketcher.Constraint("Tangent", 73, 2, 70, 2))
sketch1.addConstraint(Sketcher.Constraint("Tangent", 74, 1, 75, 1))
sketch1.addConstraint(Sketcher.Constraint("Tangent", 75, 2, 76, 2))
sketch1.addConstraint(Sketcher.Constraint("Tangent", 76, 1, 77, 1))
sketch1.addConstraint(Sketcher.Constraint("Tangent", 77, 2, 74, 2))
sketch1.addConstraint(Sketcher.Constraint("Tangent", 78, 1, 79, 1))
sketch1.addConstraint(Sketcher.Constraint("Tangent", 79, 2, 80, 2))
sketch1.addConstraint(Sketcher.Constraint("Tangent", 80, 1, 81, 1))
sketch1.addConstraint(Sketcher.Constraint("Tangent", 81, 2, 78, 2))
sketch1.addConstraint(Sketcher.Constraint("Tangent", 82, 1, 83, 1))
sketch1.addConstraint(Sketcher.Constraint("Tangent", 83, 2, 84, 2))
sketch1.addConstraint(Sketcher.Constraint("Tangent", 84, 1, 85, 1))
sketch1.addConstraint(Sketcher.Constraint("Tangent", 85, 2, 82, 2))
sketch1.addConstraint(Sketcher.Constraint("Tangent", 86, 2, 87, 2))
sketch1.addConstraint(Sketcher.Constraint("Tangent", 87, 1, 88, 1))
sketch1.addConstraint(Sketcher.Constraint("Tangent", 88, 2, 89, 2))
sketch1.addConstraint(Sketcher.Constraint("Tangent", 89, 1, 86, 1))
sketch1.addConstraint(Sketcher.Constraint("Horizontal", 0))
sketch1.addConstraint(Sketcher.Constraint("Vertical", 1))
sketch1.addConstraint(Sketcher.Constraint("Horizontal", 2))
sketch1.addConstraint(Sketcher.Constraint("Vertical", 3))
sketch1.addConstraint(Sketcher.Constraint("Horizontal", 4))
sketch1.addConstraint(Sketcher.Constraint("Vertical", 5))
sketch1.addConstraint(Sketcher.Constraint("Horizontal", 6))
sketch1.addConstraint(Sketcher.Constraint("Vertical", 7))
sketch1.addConstraint(Sketcher.Constraint("Vertical", 10))
sketch1.addConstraint(Sketcher.Constraint("Vertical", 13))
sketch1.addConstraint(Sketcher.Constraint("Vertical", 15))
sketch1.addConstraint(Sketcher.Constraint("Vertical", 17))
sketch1.addConstraint(Sketcher.Constraint("Vertical", 19))
sketch1.addConstraint(Sketcher.Constraint("Vertical", 21))
sketch1.addConstraint(Sketcher.Constraint("Vertical", 23))
sketch1.addConstraint(Sketcher.Constraint("Vertical", 25))
sketch1.addConstraint(Sketcher.Constraint("Vertical", 27))
sketch1.addConstraint(Sketcher.Constraint("Vertical", 29))
sketch1.addConstraint(Sketcher.Constraint("Vertical", 31))
sketch1.addConstraint(Sketcher.Constraint("Vertical", 33))
sketch1.addConstraint(Sketcher.Constraint("Vertical", 35))
sketch1.addConstraint(Sketcher.Constraint("Vertical", 37))
sketch1.addConstraint(Sketcher.Constraint("Vertical", 39))
sketch1.addConstraint(Sketcher.Constraint("Vertical", 41))
sketch1.addConstraint(Sketcher.Constraint("Vertical", 43))
sketch1.addConstraint(Sketcher.Constraint("Vertical", 45))
sketch1.addConstraint(Sketcher.Constraint("Vertical", 47))
sketch1.addConstraint(Sketcher.Constraint("Vertical", 49))
sketch1.addConstraint(Sketcher.Constraint("Vertical", 51))
sketch1.addConstraint(Sketcher.Constraint("Vertical", 53))
sketch1.addConstraint(Sketcher.Constraint("Vertical", 55))
sketch1.addConstraint(Sketcher.Constraint("Vertical", 57))
sketch1.addConstraint(Sketcher.Constraint("Vertical", 59))
sketch1.addConstraint(Sketcher.Constraint("Vertical", 61))
sketch1.addConstraint(Sketcher.Constraint("Vertical", 63))
sketch1.addConstraint(Sketcher.Constraint("Vertical", 65))
sketch1.addConstraint(Sketcher.Constraint("Vertical", 67))
sketch1.addConstraint(Sketcher.Constraint("Vertical", 69))
sketch1.addConstraint(Sketcher.Constraint("Vertical", 71))
sketch1.addConstraint(Sketcher.Constraint("Vertical", 73))
sketch1.addConstraint(Sketcher.Constraint("Vertical", 75))
sketch1.addConstraint(Sketcher.Constraint("Vertical", 77))
sketch1.addConstraint(Sketcher.Constraint("Vertical", 79))
sketch1.addConstraint(Sketcher.Constraint("Vertical", 81))
sketch1.addConstraint(Sketcher.Constraint("Vertical", 83))
sketch1.addConstraint(Sketcher.Constraint("Vertical", 85))
sketch1.addConstraint(Sketcher.Constraint("Vertical", 86))
sketch1.addConstraint(Sketcher.Constraint("Vertical", 88))
sketch1.addConstraint(Sketcher.Constraint("Equal", 16, 18))
sketch1.addConstraint(Sketcher.Constraint("Equal", 20, 22))
sketch1.addConstraint(Sketcher.Constraint("Equal", 24, 26))
sketch1.addConstraint(Sketcher.Constraint("Equal", 28, 30))
sketch1.addConstraint(Sketcher.Constraint("Equal", 32, 34))
sketch1.addConstraint(Sketcher.Constraint("Equal", 36, 38))
sketch1.addConstraint(Sketcher.Constraint("Equal", 40, 42))
sketch1.addConstraint(Sketcher.Constraint("Equal", 44, 46))
sketch1.addConstraint(Sketcher.Constraint("Equal", 48, 50))
sketch1.addConstraint(Sketcher.Constraint("Equal", 52, 54))
sketch1.addConstraint(Sketcher.Constraint("Equal", 56, 58))
sketch1.addConstraint(Sketcher.Constraint("Equal", 60, 62))
sketch1.addConstraint(Sketcher.Constraint("Equal", 64, 66))
sketch1.addConstraint(Sketcher.Constraint("Equal", 68, 70))
sketch1.addConstraint(Sketcher.Constraint("Equal", 72, 74))
sketch1.addConstraint(Sketcher.Constraint("Equal", 76, 78))
sketch1.addConstraint(Sketcher.Constraint("Equal", 80, 82))
sketch1.addConstraint(Sketcher.Constraint("Equal", 84, 87))
sketch1.addConstraint(Sketcher.Constraint("Symmetric", 50, 3, 52, 3, -1, 1))
sketch1.addConstraint(Sketcher.Constraint("Symmetric", 48, 3, 54, 3, -1, 1))
sketch1.addConstraint(Sketcher.Constraint("Symmetric", 44, 3, 58, 3, -1, 1))
sketch1.addConstraint(Sketcher.Constraint("Symmetric", 40, 3, 62, 3, -1, 1))
sketch1.addConstraint(Sketcher.Constraint("Symmetric", 36, 3, 66, 3, -1, 1))
sketch1.addConstraint(Sketcher.Constraint("Symmetric", 32, 3, 70, 3, -1, 1))
sketch1.addConstraint(Sketcher.Constraint("Symmetric", 28, 3, 74, 3, -1, 1))
sketch1.addConstraint(Sketcher.Constraint("Symmetric", 24, 3, 78, 3, -1, 1))
sketch1.addConstraint(Sketcher.Constraint("Symmetric", 20, 3, 82, 3, -1, 1))
sketch1.addConstraint(Sketcher.Constraint("Symmetric", 14, 3, 87, 3, -1, 1))
sketch1.addConstraint(Sketcher.Constraint("Symmetric", 0, 2, 6, 2, -1, 1))
sketch1.addConstraint(Sketcher.Constraint("Parallel", 8, 11))
sketch1.addConstraint(Sketcher.Constraint("Parallel", 9, 12))
sketch1.addConstraint(Sketcher.Constraint("Horizontal", 14, 3, 18, 3))
sketch1.addConstraint(Sketcher.Constraint("Horizontal", 16, 3, 20, 3))
sketch1.addConstraint(Sketcher.Constraint("Horizontal", 18, 3, 22, 3))
sketch1.addConstraint(Sketcher.Constraint("Horizontal", 20, 3, 24, 3))
sketch1.addConstraint(Sketcher.Constraint("Horizontal", 22, 3, 26, 3))
sketch1.addConstraint(Sketcher.Constraint("Horizontal", 24, 3, 28, 3))
sketch1.addConstraint(Sketcher.Constraint("Horizontal", 26, 3, 30, 3))
sketch1.addConstraint(Sketcher.Constraint("Horizontal", 28, 3, 32, 3))
sketch1.addConstraint(Sketcher.Constraint("Horizontal", 30, 3, 34, 3))
sketch1.addConstraint(Sketcher.Constraint("Horizontal", 32, 3, 36, 3))
sketch1.addConstraint(Sketcher.Constraint("Horizontal", 34, 3, 38, 3))
sketch1.addConstraint(Sketcher.Constraint("Horizontal", 36, 3, 40, 3))
sketch1.addConstraint(Sketcher.Constraint("Horizontal", 38, 3, 42, 3))
sketch1.addConstraint(Sketcher.Constraint("Horizontal", 40, 3, 44, 3))
sketch1.addConstraint(Sketcher.Constraint("Horizontal", 42, 3, 46, 3))
sketch1.addConstraint(Sketcher.Constraint("Horizontal", 44, 3, 48, 3))
sketch1.addConstraint(Sketcher.Constraint("Horizontal", 46, 3, 50, 3))
sketch1.addConstraint(Sketcher.Constraint("Horizontal", 48, 3, 52, 3))
sketch1.addConstraint(Sketcher.Constraint("Horizontal", 52, 3, 56, 3))
sketch1.addConstraint(Sketcher.Constraint("Horizontal", 56, 3, 60, 3))
sketch1.addConstraint(Sketcher.Constraint("Horizontal", 60, 3, 64, 3))
sketch1.addConstraint(Sketcher.Constraint("Horizontal", 64, 3, 68, 3))
sketch1.addConstraint(Sketcher.Constraint("Horizontal", 68, 3, 72, 3))
sketch1.addConstraint(Sketcher.Constraint("Horizontal", 72, 3, 76, 3))
sketch1.addConstraint(Sketcher.Constraint("Horizontal", 76, 3, 80, 3))
sketch1.addConstraint(Sketcher.Constraint("Horizontal", 80, 3, 84, 3))
sketch1.addConstraint(Sketcher.Constraint("Horizontal", 82, 3, 89, 3))
sketch1.addConstraint(Sketcher.Constraint("Horizontal", 2, 2, 5, 2))
sketch1.addConstraint(Sketcher.Constraint("Horizontal", 10, 2, 12, 2))
sketch1.addConstraint(Sketcher.Constraint("Horizontal", 9, 2, 13, 2))
sketch1.addConstraint(Sketcher.Constraint("Vertical", 8, 2, 11, 2))
sketch1.addConstraint(Sketcher.Constraint("Equal", 4, 3))
sketch1.addConstraint(Sketcher.Constraint("Radius", 14, 3.5))
sketch1.addConstraint(Sketcher.Constraint("DistanceX", 0, 2, 0, 1, 228.0))
sketch1.addConstraint(Sketcher.Constraint("DistanceX", 4, 1, 4, 2, 10.0))
sketch1.addConstraint(Sketcher.Constraint("DistanceY", 1, 2, 1, 1, 70.0))
sketch1.addConstraint(Sketcher.Constraint("DistanceY", 15, 1, 15, 2, 55.0))
sketch1.addConstraint(Sketcher.Constraint("Angle", 8, Q("-150 deg")))
sketch1.addConstraint(Sketcher.Constraint("DistanceX", 2, 1, 2, 2, 54.5))
sketch1.addConstraint(Sketcher.Constraint("DistanceX", -1, 1, 14, 3, 108.0))
sketch1.addConstraint(Sketcher.Constraint("DistanceX", -1, 1, 18, 3, 96.0))
sketch1.addConstraint(Sketcher.Constraint("DistanceX", -1, 1, 22, 3, 84.0))
sketch1.addConstraint(Sketcher.Constraint("DistanceX", -1, 1, 26, 3, 72.0))
sketch1.addConstraint(Sketcher.Constraint("DistanceX", -1, 1, 30, 3, 60.0))
sketch1.addConstraint(Sketcher.Constraint("DistanceX", -1, 1, 34, 3, 48.0))
sketch1.addConstraint(Sketcher.Constraint("DistanceX", -1, 1, 38, 3, 36.0))
sketch1.addConstraint(Sketcher.Constraint("DistanceX", -1, 1, 42, 3, 24.0))
sketch1.addConstraint(Sketcher.Constraint("DistanceX", -1, 1, 46, 3, 12.0))
sketch1.addConstraint(Sketcher.Constraint("DistanceX", 9, 2, -1, 1, 58.0))
sketch1.addConstraint(Sketcher.Constraint("DistanceX", 12, 2, -1, 1, 51.0))
sketch1.addConstraint(Sketcher.Constraint("DistanceY", 10, 1, 10, 2, 4.041452))
sketch1.addConstraint(Sketcher.Constraint("DistanceY", 8, 2, -1, 1, 44.041452))
pad1 = body.newObject("PartDesign::Pad", "Pad")
pad1.Profile = sketch1
pad1.Length = 2.5
doc.recompute()

chamfer = body.newObject("PartDesign::Chamfer", "Chamfer")
chamfer.Base = (pad1, edges_at(pad1, [
    (-52.75, -43.031, 2.5),
    (-51, -40, 2.5),
    (-52.75, -36.969, 2.5),
    (-56.25, -36.969, 2.5),
    (-58, -40, 2.5),
    (-56.25, -43.031, 2.5),
]))
chamfer.Size = 0.1

doc.recompute()
